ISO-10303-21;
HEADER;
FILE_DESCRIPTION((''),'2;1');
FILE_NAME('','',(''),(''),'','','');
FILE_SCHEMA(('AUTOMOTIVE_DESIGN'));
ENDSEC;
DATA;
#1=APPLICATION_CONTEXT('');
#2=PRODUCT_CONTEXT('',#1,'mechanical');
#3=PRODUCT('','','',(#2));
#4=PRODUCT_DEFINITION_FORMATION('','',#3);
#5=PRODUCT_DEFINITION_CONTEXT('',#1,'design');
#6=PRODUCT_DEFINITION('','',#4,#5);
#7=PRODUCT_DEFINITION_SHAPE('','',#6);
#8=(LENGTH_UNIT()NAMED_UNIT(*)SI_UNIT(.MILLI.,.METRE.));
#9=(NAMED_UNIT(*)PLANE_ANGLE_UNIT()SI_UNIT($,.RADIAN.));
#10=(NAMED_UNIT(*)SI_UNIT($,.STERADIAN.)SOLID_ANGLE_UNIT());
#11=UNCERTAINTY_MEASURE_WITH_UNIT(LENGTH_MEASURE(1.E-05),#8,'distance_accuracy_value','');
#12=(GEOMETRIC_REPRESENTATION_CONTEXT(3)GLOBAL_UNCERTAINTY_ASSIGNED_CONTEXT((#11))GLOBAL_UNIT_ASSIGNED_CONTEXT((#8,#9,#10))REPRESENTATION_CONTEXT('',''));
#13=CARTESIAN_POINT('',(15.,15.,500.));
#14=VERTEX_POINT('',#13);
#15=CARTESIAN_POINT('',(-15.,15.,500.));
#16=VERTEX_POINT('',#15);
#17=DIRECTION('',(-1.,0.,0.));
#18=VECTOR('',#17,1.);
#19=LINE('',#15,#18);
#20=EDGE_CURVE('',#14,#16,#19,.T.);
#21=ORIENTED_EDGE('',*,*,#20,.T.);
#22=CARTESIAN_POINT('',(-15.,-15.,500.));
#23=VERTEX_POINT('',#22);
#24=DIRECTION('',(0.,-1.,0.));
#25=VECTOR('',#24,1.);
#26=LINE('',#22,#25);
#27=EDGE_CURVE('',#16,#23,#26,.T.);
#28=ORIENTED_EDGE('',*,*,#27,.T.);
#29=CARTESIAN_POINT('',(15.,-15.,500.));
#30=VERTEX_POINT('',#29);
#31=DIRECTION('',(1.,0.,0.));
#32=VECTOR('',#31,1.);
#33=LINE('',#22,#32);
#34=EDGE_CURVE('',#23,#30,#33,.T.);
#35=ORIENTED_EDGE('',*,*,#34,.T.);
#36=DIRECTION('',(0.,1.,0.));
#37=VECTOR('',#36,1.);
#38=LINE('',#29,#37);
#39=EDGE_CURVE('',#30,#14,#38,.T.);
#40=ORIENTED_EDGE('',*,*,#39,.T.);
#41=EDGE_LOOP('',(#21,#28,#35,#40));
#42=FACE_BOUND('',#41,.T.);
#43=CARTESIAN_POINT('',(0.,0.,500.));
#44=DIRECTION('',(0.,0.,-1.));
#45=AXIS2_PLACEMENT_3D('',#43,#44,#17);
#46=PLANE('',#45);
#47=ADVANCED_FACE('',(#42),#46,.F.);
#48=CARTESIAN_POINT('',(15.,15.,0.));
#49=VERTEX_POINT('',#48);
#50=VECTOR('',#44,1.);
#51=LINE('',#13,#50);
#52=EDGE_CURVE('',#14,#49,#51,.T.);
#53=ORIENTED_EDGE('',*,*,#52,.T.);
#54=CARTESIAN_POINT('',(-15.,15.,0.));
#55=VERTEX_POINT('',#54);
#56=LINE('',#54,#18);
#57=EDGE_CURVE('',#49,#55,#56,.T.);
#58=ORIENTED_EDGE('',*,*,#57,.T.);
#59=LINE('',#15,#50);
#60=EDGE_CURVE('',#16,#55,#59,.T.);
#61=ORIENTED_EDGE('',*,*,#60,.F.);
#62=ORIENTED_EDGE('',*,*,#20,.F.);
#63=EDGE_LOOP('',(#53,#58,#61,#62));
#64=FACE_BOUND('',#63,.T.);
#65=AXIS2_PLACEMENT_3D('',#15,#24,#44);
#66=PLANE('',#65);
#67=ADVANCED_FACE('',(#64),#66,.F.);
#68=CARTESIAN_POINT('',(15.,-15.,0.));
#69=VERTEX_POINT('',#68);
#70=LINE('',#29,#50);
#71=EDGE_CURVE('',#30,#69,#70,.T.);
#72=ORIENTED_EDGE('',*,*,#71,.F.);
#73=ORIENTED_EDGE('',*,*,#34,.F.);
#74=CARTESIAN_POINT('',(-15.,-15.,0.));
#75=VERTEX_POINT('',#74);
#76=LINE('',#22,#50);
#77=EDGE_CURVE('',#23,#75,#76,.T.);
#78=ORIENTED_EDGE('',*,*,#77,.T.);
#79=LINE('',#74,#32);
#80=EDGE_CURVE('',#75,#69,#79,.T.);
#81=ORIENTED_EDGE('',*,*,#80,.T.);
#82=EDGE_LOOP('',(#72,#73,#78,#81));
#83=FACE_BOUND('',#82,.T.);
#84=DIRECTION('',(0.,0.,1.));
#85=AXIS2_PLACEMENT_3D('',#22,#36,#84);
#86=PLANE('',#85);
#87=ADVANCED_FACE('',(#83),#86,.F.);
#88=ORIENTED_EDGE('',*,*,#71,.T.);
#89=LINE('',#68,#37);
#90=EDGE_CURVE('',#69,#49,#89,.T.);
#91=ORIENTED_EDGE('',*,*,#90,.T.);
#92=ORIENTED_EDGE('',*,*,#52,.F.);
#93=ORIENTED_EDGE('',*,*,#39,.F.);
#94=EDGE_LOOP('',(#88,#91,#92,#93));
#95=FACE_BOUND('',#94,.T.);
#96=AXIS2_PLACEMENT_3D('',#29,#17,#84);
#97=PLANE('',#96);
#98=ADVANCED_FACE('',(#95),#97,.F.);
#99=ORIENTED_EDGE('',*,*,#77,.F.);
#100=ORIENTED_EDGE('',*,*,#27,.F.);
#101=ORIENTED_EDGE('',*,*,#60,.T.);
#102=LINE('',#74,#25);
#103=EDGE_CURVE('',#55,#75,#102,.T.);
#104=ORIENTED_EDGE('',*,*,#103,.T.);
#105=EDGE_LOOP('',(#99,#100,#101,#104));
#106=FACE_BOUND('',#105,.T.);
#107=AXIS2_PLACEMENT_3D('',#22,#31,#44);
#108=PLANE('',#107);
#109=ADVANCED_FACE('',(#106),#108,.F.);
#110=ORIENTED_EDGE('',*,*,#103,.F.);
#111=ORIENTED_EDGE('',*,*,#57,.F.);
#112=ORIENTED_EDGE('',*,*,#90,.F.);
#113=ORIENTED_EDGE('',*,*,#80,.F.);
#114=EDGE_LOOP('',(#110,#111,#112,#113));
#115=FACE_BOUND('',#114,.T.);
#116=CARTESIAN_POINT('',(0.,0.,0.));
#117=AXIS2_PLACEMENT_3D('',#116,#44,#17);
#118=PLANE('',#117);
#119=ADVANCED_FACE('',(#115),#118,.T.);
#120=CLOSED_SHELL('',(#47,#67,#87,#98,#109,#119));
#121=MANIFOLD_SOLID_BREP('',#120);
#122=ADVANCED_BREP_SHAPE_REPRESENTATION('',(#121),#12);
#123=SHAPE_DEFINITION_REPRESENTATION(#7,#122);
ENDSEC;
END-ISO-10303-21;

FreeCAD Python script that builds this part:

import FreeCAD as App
import Part
import Sketcher
from FreeCAD import Vector

doc = App.newDocument("Part")
params = doc.addObject("Spreadsheet::Sheet", "Params")
for row, (alias, value) in enumerate([
    ("sketch1_width", "30 mm"),
    ("pad1_length", "500 mm"),
], start=1):
    params.set(f"A{row}", alias)
    params.set(f"B{row}", "=" + value)
    params.setAlias(f"B{row}", alias)

body = doc.addObject("PartDesign::Body", "Body")

# Sketch on XY plane
sketch1 = doc.addObject("Sketcher::SketchObject", "Sketch")
body.addObject(sketch1)
sketch1.AttachmentSupport = (doc.XY_Plane, [""])
sketch1.MapMode = "FlatFace"
sketch1.addGeometry(Part.LineSegment(Vector(-15, 15, 0), Vector(-15, -15, 0)), False)
sketch1.addGeometry(Part.LineSegment(Vector(-15, -15, 0), Vector(15, -15, 0)), False)
sketch1.addGeometry(Part.LineSegment(Vector(15, -15, 0), Vector(15, 15, 0)), False)
sketch1.addGeometry(Part.LineSegment(Vector(15, 15, 0), Vector(-15, 15, 0)), False)
sketch1.addConstraint(Sketcher.Constraint("Coincident", 0, 2, 1, 1))
sketch1.addConstraint(Sketcher.Constraint("Coincident", 1, 2, 2, 1))
sketch1.addConstraint(Sketcher.Constraint("Coincident", 2, 2, 3, 1))
sketch1.addConstraint(Sketcher.Constraint("Coincident", 3, 2, 0, 1))
sketch1.addConstraint(Sketcher.Constraint("Vertical", 0))
sketch1.addConstraint(Sketcher.Constraint("Horizontal", 1))
sketch1.addConstraint(Sketcher.Constraint("Vertical", 2))
sketch1.addConstraint(Sketcher.Constraint("Horizontal", 3))
sketch1.addConstraint(Sketcher.Constraint("Symmetric", 0, 2, 2, 2, -1, 1))
sketch1.addConstraint(Sketcher.Constraint("Equal", 3, 0))
sketch1.addConstraint(Sketcher.Constraint("DistanceX", 1, 1, 1, 2, 30.0))
sketch1.setExpression("Constraints[10]", "Params.sketch1_width")
pad1 = doc.addObject("PartDesign::Pad", "Pad")
body.addObject(pad1)
pad1.Profile = sketch1
pad1.setExpression("Length", "Params.pad1_length")

doc.recompute()
